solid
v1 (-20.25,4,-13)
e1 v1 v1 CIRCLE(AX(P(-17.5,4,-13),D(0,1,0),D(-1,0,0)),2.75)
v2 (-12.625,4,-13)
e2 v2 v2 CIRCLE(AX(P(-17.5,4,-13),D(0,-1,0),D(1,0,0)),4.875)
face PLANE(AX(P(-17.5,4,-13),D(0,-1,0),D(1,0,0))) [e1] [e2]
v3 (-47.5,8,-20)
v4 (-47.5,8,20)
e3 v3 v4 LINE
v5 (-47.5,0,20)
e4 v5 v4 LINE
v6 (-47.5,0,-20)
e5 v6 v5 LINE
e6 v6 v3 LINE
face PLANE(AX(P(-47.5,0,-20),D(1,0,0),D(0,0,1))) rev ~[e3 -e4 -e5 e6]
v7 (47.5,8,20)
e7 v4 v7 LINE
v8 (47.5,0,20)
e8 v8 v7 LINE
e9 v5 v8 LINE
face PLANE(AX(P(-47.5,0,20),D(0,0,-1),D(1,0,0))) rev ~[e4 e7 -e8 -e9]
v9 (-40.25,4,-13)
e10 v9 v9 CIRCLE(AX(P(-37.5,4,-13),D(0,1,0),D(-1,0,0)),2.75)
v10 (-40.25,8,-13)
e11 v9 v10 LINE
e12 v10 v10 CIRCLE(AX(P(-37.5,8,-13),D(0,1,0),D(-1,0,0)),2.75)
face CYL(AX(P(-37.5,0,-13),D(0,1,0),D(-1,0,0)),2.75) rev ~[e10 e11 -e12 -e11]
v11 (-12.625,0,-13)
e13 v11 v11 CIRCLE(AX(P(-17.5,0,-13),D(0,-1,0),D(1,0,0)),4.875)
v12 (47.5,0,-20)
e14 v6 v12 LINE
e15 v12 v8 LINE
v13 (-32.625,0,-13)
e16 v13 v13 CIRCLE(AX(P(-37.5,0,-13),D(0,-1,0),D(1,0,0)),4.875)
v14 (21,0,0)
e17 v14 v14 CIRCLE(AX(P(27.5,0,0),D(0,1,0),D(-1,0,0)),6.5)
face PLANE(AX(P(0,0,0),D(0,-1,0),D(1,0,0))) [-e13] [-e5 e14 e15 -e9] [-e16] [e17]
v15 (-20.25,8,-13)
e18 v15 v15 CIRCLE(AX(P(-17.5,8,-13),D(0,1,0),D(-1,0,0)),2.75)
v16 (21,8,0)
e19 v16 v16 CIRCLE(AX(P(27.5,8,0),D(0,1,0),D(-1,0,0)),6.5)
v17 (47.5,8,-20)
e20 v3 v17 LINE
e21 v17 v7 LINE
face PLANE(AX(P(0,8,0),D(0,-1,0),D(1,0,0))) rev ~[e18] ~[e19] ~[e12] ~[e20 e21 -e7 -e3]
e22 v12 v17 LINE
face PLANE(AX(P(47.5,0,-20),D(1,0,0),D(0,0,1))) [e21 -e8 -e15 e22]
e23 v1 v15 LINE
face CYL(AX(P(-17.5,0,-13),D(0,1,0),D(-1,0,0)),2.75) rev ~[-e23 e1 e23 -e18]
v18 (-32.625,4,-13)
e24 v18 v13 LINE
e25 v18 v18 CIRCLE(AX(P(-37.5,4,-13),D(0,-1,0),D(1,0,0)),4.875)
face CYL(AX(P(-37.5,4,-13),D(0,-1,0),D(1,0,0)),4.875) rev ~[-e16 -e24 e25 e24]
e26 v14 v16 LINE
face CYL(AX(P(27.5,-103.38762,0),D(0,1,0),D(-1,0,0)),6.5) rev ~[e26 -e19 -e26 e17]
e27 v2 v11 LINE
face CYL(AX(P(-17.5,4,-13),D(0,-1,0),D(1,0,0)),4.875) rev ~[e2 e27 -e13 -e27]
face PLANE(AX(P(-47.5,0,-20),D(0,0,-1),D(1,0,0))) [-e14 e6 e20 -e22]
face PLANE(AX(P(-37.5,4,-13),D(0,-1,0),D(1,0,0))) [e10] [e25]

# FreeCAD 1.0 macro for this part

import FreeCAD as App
import Part
import Sketcher

doc = App.newDocument("Part")
params = doc.addObject("Spreadsheet::Sheet", "Params")
for row, (alias, value) in enumerate([
    ("sketch1_width", "95 mm"),
    ("sketch1_height", "40 mm"),
    ("pad1_length", "8 mm"),
    ("sketch2_diameter", "5.5 mm"),
    ("hole_diameter", "5.5 mm"),
    ("hole_cbore_diameter", "9.75 mm"),
    ("hole_cbore_depth", "4 mm"),
    ("sketch3_diameter", "13 mm"),
    ("hole2_diameter", "13 mm"),
], start=1):
    params.set(f"A{row}", alias)
    params.set(f"B{row}", "=" + value)
    params.setAlias(f"B{row}", alias)

body = doc.addObject("PartDesign::Body", "Body")

# Sketch on XZ plane
sketch1 = body.newObject("Sketcher::SketchObject", "Sketch")
sketch1.AttachmentSupport = (doc.getObject("XZ_Plane"), [""])
sketch1.MapMode = "FlatFace"
sketch1.addGeometry([
    Part.LineSegment(App.Vector(-48, 20, 0), App.Vector(-48, -20, 0)),
    Part.LineSegment(App.Vector(-48, -20, 0), App.Vector(48, -20, 0)),
    Part.LineSegment(App.Vector(48, -20, 0), App.Vector(48, 20, 0)),
    Part.LineSegment(App.Vector(48, 20, 0), App.Vector(-48, 20, 0)),
], False)
sketch1.addConstraint([
    Sketcher.Constraint("Coincident", 0, 2, 1, 1),
    Sketcher.Constraint("Coincident", 1, 2, 2, 1),
    Sketcher.Constraint("Coincident", 2, 2, 3, 1),
    Sketcher.Constraint("Coincident", 3, 2, 0, 1),
    Sketcher.Constraint("Vertical", 0),
    Sketcher.Constraint("Horizontal", 1),
    Sketcher.Constraint("Vertical", 2),
    Sketcher.Constraint("Horizontal", 3),
    Sketcher.Constraint("Symmetric", 0, 2, 2, 2, -1, 1),
    Sketcher.Constraint("DistanceX", 1, 1, 1, 2, 95.0),
    Sketcher.Constraint("DistanceY", 0, 2, 0, 1, 40.0),
])
sketch1.setExpression("Constraints[9]", "Params.sketch1_width")
sketch1.setExpression("Constraints[10]", "Params.sketch1_height")
pad1 = body.newObject("PartDesign::Pad", "Pad")
pad1.Profile = sketch1
pad1.setExpression("Length", "Params.pad1_length")
pad1.Reversed = True

# Sketch on XZ plane
sketch2 = body.newObject("Sketcher::SketchObject", "Sketch001")
sketch2.AttachmentSupport = (doc.getObject("XZ_Plane"), [""])
sketch2.MapMode = "FlatFace"
sketch2.addGeometry([
    Part.Circle(App.Vector(-17.5, -13, 0), App.Vector(0, 0, 1), 2.8),
    Part.Circle(App.Vector(-37.5, -13, 0), App.Vector(0, 0, 1), 2.8),
], False)
sketch2.addConstraint([
    Sketcher.Constraint("Equal", 0, 1),
    Sketcher.Constraint("Horizontal", 0, 3, 1, 3),
    Sketcher.Constraint("Diameter", 0, 5.5),
    Sketcher.Constraint("DistanceY", 0, 3, -1, 1, 13.0),
    Sketcher.Constraint("DistanceX", 1, 3, 0, 3, 20.0),
    Sketcher.Constraint("DistanceX", 0, 3, -1, 1, 17.5),
])
sketch2.setExpression("Constraints[2]", "Params.sketch2_diameter")
doc.recompute()
hole = body.newObject("PartDesign::Hole", "Hole")
hole.Profile = sketch2
hole.ThreadType = "None"
hole.setExpression("Diameter", "Params.hole_diameter")
hole.DepthType = "ThroughAll"
hole.HoleCutType = "Counterbore"
hole.setExpression("HoleCutDiameter", "Params.hole_cbore_diameter")
hole.setExpression("HoleCutDepth", "Params.hole_cbore_depth")

# Sketch on XZ plane
sketch3 = body.newObject("Sketcher::SketchObject", "Sketch002")
sketch3.AttachmentSupport = (doc.getObject("XZ_Plane"), [""])
sketch3.MapMode = "FlatFace"
sketch3.addGeometry(Part.Circle(App.Vector(28, 0, 0), App.Vector(0, 0, 1), 6), False)
sketch3.addConstraint([
    Sketcher.Constraint("PointOnObject", 0, 3, -1),
    Sketcher.Constraint("Diameter", 0, 13.0),
    Sketcher.Constraint("DistanceX", -1, 1, 0, 3, 27.5),
])
sketch3.setExpression("Constraints[1]", "Params.sketch3_diameter")
doc.recompute()
hole2 = body.newObject("PartDesign::Hole", "Hole001")
hole2.Profile = sketch3
hole2.ThreadType = "None"
hole2.setExpression("Diameter", "Params.hole2_diameter")
hole2.DepthType = "ThroughAll"

doc.recompute()
